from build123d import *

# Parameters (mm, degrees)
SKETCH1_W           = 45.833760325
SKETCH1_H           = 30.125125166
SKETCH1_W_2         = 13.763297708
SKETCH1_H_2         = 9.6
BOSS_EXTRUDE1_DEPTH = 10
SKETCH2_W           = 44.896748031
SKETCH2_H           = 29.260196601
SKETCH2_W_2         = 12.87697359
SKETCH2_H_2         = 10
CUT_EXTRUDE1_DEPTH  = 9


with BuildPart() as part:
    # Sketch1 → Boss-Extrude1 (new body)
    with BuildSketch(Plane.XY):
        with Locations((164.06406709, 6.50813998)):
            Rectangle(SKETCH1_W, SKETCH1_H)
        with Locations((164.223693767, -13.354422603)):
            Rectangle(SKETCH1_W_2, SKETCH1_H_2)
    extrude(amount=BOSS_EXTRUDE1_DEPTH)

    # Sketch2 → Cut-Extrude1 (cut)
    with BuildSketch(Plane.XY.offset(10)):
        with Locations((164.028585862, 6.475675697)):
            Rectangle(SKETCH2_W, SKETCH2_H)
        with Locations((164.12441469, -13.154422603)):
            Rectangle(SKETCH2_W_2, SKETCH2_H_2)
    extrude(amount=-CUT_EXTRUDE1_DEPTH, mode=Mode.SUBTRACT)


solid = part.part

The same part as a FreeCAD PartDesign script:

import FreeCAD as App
import Part
import Sketcher


def add_polygon(sketch, points):
    """Adds a closed chain of lines whose ends are joined by coincident constraints."""
    first, n = sketch.GeometryCount, len(points)
    for a, b in zip(points, points[1:] + points[:1]):
        sketch.addGeometry(Part.LineSegment(App.Vector(*a, 0), App.Vector(*b, 0)), False)
    for i in range(n):
        sketch.addConstraint(Sketcher.Constraint("Coincident", first + i, 2, first + (i + 1) % n, 1))

doc = App.newDocument("Part")
params = doc.addObject("Spreadsheet::Sheet", "Params")
for row, (alias, value) in enumerate([
    ("sketch1_height", "9.6 mm"),
    ("pad1_length", "10 mm"),
    ("sketch2_height", "10 mm"),
    ("pocket1_length", "9 mm"),
], start=1):
    params.set(f"A{row}", alias)
    params.set(f"B{row}", "=" + value)
    params.setAlias(f"B{row}", alias)

body = doc.addObject("PartDesign::Body", "Body")

# Sketch on XY plane
sketch1 = body.newObject("Sketcher::SketchObject", "Sketch")
sketch1.AttachmentSupport = (doc.getObject("XY_Plane"), [""])
sketch1.MapMode = "FlatFace"
add_polygon(sketch1, [(141, 22), (141, -9), (157, -9), (157, -18), (171, -18), (171, -9), (187, -9), (187, 22)])  # lines 0-7
sketch1.addConstraint([
    Sketcher.Constraint("Vertical", 0),
    Sketcher.Constraint("Horizontal", 1),
    Sketcher.Constraint("Vertical", 2),
    Sketcher.Constraint("Horizontal", 3),
    Sketcher.Constraint("Vertical", 4),
    Sketcher.Constraint("Horizontal", 5),
    Sketcher.Constraint("Vertical", 6),
    Sketcher.Constraint("Horizontal", 7),
    Sketcher.Constraint("Horizontal", 1, 2, 4, 2),
    Sketcher.Constraint("DistanceY", 2, 2, 2, 1, 9.6),
    Sketcher.Constraint("DistanceX", 7, 2, 7, 1, 45.83376),
    Sketcher.Constraint("DistanceX", 1, 1, 1, 2, 16.194858),
    Sketcher.Constraint("DistanceX", 3, 1, 3, 2, 13.763298),
    Sketcher.Constraint("DistanceY", 0, 2, 0, 1, 30.125125),
    Sketcher.Constraint("DistanceX", -1, 1, 0, 2, 141.147187),
    Sketcher.Constraint("DistanceY", 0, 2, -1, 1, 8.554423),
])
sketch1.setExpression("Constraints[17]", "Params.sketch1_height")
pad1 = body.newObject("PartDesign::Pad", "Pad")
pad1.Profile = sketch1
pad1.setExpression("Length", "Params.pad1_length")

# Sketch on XY plane
sketch2 = body.newObject("Sketcher::SketchObject", "Sketch001")
sketch2.AttachmentSupport = (doc.getObject("XY_Plane"), [""])
sketch2.MapMode = "FlatFace"
sketch2.AttachmentOffset = App.Placement(App.Vector(0, 0, 10), App.Rotation())
add_polygon(sketch2, [(142, 21), (142, -8), (158, -8), (158, -18), (171, -18), (171, -8), (186, -8), (186, 21)])  # lines 0-7
sketch2.addConstraint([
    Sketcher.Constraint("Vertical", 0),
    Sketcher.Constraint("Horizontal", 1),
    Sketcher.Constraint("Vertical", 2),
    Sketcher.Constraint("Horizontal", 3),
    Sketcher.Constraint("Vertical", 4),
    Sketcher.Constraint("Horizontal", 5),
    Sketcher.Constraint("Vertical", 6),
    Sketcher.Constraint("Horizontal", 7),
    Sketcher.Constraint("Horizontal", 1, 2, 4, 2),
    Sketcher.Constraint("DistanceY", 2, 2, 2, 1, 10.0),
    Sketcher.Constraint("DistanceX", 5, 1, 5, 2, 15.914058),
    Sketcher.Constraint("DistanceX", 7, 2, 7, 1, 44.896748),
    Sketcher.Constraint("DistanceX", -1, 1, 3, 2, 170.562901),
    Sketcher.Constraint("DistanceX", 1, 1, 1, 2, 16.105716),
    Sketcher.Constraint("DistanceY", 0, 2, 0, 1, 29.260197),
    Sketcher.Constraint("DistanceY", 0, 2, -1, 1, 8.154423),
])
sketch2.setExpression("Constraints[17]", "Params.sketch2_height")
pocket1 = body.newObject("PartDesign::Pocket", "Pocket")
pocket1.Profile = sketch2
pocket1.setExpression("Length", "Params.pocket1_length")

doc.recompute()
